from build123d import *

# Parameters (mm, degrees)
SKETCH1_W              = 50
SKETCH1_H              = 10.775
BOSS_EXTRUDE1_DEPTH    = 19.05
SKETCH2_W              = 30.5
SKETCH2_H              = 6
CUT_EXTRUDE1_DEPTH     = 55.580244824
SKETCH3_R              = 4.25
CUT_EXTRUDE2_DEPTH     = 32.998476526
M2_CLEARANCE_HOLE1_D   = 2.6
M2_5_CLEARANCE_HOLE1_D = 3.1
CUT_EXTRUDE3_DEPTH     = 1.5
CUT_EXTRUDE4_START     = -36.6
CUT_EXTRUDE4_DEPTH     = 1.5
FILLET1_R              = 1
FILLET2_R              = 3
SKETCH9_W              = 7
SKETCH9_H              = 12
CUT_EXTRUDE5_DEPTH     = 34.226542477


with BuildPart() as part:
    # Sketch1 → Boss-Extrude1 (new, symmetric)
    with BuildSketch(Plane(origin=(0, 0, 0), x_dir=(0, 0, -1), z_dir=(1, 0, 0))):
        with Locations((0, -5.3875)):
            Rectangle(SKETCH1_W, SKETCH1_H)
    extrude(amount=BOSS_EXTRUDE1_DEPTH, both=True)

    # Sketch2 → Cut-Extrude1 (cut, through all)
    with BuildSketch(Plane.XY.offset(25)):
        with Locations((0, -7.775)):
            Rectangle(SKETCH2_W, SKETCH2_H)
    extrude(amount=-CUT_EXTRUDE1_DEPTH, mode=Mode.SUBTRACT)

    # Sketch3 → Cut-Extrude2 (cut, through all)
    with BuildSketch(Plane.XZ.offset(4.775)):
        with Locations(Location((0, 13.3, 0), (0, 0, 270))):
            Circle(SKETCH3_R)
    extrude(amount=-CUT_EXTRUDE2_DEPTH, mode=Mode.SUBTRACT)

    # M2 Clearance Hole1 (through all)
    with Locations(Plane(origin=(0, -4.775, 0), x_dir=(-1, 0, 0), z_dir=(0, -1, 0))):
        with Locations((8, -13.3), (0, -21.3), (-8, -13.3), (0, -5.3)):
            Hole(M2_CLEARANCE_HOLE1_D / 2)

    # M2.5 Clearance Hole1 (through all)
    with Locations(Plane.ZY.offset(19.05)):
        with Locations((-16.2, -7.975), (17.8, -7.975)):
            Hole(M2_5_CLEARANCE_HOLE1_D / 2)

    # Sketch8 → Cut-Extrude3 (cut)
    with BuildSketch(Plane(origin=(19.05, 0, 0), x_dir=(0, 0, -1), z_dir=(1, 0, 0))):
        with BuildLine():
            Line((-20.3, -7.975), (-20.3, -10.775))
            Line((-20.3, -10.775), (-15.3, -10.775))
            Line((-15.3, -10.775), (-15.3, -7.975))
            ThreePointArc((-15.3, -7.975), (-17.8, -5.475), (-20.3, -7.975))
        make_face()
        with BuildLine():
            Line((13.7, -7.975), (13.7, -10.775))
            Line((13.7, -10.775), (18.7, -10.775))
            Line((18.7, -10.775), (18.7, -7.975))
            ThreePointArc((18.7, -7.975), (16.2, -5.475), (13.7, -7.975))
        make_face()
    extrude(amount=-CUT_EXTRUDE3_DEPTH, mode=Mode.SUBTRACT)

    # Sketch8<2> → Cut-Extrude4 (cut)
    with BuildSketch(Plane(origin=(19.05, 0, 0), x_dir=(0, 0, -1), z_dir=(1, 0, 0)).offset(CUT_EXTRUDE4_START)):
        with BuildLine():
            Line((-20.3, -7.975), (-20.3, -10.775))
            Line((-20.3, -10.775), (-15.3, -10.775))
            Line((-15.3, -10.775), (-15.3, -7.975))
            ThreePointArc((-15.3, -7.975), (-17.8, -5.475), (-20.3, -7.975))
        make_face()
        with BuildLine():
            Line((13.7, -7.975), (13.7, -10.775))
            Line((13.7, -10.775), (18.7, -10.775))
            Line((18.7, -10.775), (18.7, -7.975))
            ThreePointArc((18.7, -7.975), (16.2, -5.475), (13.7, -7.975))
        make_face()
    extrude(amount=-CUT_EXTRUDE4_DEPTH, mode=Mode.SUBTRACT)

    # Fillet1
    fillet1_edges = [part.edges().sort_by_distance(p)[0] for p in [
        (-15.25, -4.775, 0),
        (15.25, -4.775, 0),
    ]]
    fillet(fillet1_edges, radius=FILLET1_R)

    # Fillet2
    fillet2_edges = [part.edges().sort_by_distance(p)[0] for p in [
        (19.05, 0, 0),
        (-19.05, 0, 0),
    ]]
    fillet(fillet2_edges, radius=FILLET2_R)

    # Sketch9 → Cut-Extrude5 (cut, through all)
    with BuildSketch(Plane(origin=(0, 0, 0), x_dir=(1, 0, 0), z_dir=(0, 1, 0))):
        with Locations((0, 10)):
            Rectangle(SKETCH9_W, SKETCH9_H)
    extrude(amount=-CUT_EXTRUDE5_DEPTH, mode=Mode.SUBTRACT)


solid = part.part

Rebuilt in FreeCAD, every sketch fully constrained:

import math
import FreeCAD as App
import Part
import Sketcher

V = App.Vector


def edges_at(feature, points):
    """Names of the edges that pass closest to the given points."""
    edges = feature.Shape.Edges
    near = lambda p: min(range(len(edges)), key=lambda i: edges[i].distToShape(Part.Vertex(*p))[0])
    return sorted({f"Edge{near(p) + 1}" for p in points})


def add_polygon(sketch, points):
    """Adds a closed chain of lines whose ends are joined by coincident constraints."""
    first, n = sketch.GeometryCount, len(points)
    for a, b in zip(points, points[1:] + points[:1]):
        sketch.addGeometry(Part.LineSegment(App.Vector(*a, 0), App.Vector(*b, 0)), False)
    for i in range(n):
        sketch.addConstraint(Sketcher.Constraint("Coincident", first + i, 2, first + (i + 1) % n, 1))

doc = App.newDocument("Part")
params = doc.addObject("Spreadsheet::Sheet", "Params")
for row, (alias, value) in enumerate([
    ("sketch1_height", "50 mm"),
    ("pad1_length", "38.1 mm"),
    ("sketch2_height", "6 mm"),
    ("sketch2_width", "30.5 mm"),
    ("sketch3_diameter", "8.5 mm"),
    ("sketch4_diameter", "2.6 mm"),
    ("hole_diameter", "2.6 mm"),
    ("sketch5_diameter", "3.1 mm"),
    ("hole2_diameter", "3.1 mm"),
    ("sketch6_radius", "2.5 mm"),
    ("sketch6_width", "2.8 mm"),
    ("pocket3_length", "1.5 mm"),
    ("sketch7_radius", "2.5 mm"),
    ("sketch7_width", "2.8 mm"),
    ("pocket4_length", "1.5 mm"),
    ("fillet_radius", "1 mm"),
    ("fillet2_radius", "3 mm"),
    ("sketch8_width", "7 mm"),
    ("sketch8_height", "12 mm"),
], start=1):
    params.set(f"A{row}", alias)
    params.set(f"B{row}", "=" + value)
    params.setAlias(f"B{row}", alias)

body = doc.addObject("PartDesign::Body", "Body")

sketch1 = body.newObject("Sketcher::SketchObject", "Sketch")
sketch1.AttachmentSupport = (doc.getObject("YZ_Plane"), [""])
sketch1.MapMode = "FlatFace"
add_polygon(sketch1, [(0, 25), (-11, 25), (-11, -25), (0, -25)])
sketch1.addConstraint([
    Sketcher.Constraint("Horizontal", 0),
    Sketcher.Constraint("Vertical", 1),
    Sketcher.Constraint("Horizontal", 2),
    Sketcher.Constraint("Vertical", 3),
    Sketcher.Constraint("Symmetric", 2, 2, 3, 2, -1, 1),
    Sketcher.Constraint("DistanceY", 1, 2, 1, 1, 50.0),
    Sketcher.Constraint("DistanceX", 0, 2, 0, 1, 10.775),
])
sketch1.setExpression("Constraints[9]", "Params.sketch1_height")
pad1 = body.newObject("PartDesign::Pad", "Pad")
pad1.Profile = sketch1
pad1.setExpression("Length", "Params.pad1_length")
pad1.Midplane = True

sketch2 = body.newObject("Sketcher::SketchObject", "Sketch001")
sketch2.AttachmentSupport = (doc.getObject("XY_Plane"), [""])
sketch2.MapMode = "FlatFace"
sketch2.AttachmentOffset = App.Placement(V(0, 0, 25), App.Rotation())
add_polygon(sketch2, [(-15, -5), (-15, -11), (15, -11), (15, -5)])
sketch2.addConstraint([
    Sketcher.Constraint("Vertical", 0),
    Sketcher.Constraint("Horizontal", 1),
    Sketcher.Constraint("Vertical", 2),
    Sketcher.Constraint("Horizontal", 3),
    Sketcher.Constraint("DistanceY", 0, 2, 0, 1, 6.0),
    Sketcher.Constraint("DistanceX", 1, 1, 1, 2, 30.5),
    Sketcher.Constraint("DistanceX", 0, 2, -1, 1, 15.25),
    Sketcher.Constraint("DistanceY", 0, 2, -1, 1, 10.775),
])
sketch2.setExpression("Constraints[8]", "Params.sketch2_height")
sketch2.setExpression("Constraints[9]", "Params.sketch2_width")
pocket1 = body.newObject("PartDesign::Pocket", "Pocket")
pocket1.Profile = sketch2
pocket1.Type = "ThroughAll"

sketch3 = body.newObject("Sketcher::SketchObject", "Sketch002")
sketch3.AttachmentSupport = (doc.getObject("XZ_Plane"), [""])
sketch3.MapMode = "FlatFace"
sketch3.AttachmentOffset = App.Placement(V(0, 0, 4.775), App.Rotation())
sketch3.addGeometry(Part.Circle(V(0, 13.3, 0), V(0, 0, 1), 4.2), False)
sketch3.addConstraint([
    Sketcher.Constraint("PointOnObject", 0, 3, -2),
    Sketcher.Constraint("Diameter", 0, 8.5),
    Sketcher.Constraint("DistanceY", -1, 1, 0, 3, 13.3),
])
sketch3.setExpression("Constraints[1]", "Params.sketch3_diameter")
pocket2 = body.newObject("PartDesign::Pocket", "Pocket001")
pocket2.Profile = sketch3
pocket2.Type = "ThroughAll"

sketch4 = body.newObject("Sketcher::SketchObject", "Sketch003")
sketch4.AttachmentSupport = (doc.getObject("XZ_Plane"), [""])
sketch4.MapMode = "FlatFace"
sketch4.AttachmentOffset = App.Placement(V(0, 0, 4.775), App.Rotation())
sketch4.addGeometry([
    Part.Circle(V(-8, 13.3, 0), V(0, 0, 1), 1.3),
    Part.Circle(V(0, 21.3, 0), V(0, 0, 1), 1.3),
    Part.Circle(V(8, 13.3, 0), V(0, 0, 1), 1.3),
    Part.Circle(V(0, 5.3, 0), V(0, 0, 1), 1.3),
], False)
sketch4.addConstraint([
    Sketcher.Constraint("Equal", 0, 1),
    Sketcher.Constraint("Equal", 1, 2),
    Sketcher.Constraint("Equal", 2, 3),
    Sketcher.Constraint("Symmetric", 0, 3, 2, 3, -2),
    Sketcher.Constraint("PointOnObject", 1, 3, -2),
    Sketcher.Constraint("PointOnObject", 3, 3, -2),
    Sketcher.Constraint("Diameter", 0, 2.6),
    Sketcher.Constraint("DistanceX", 0, 3, -1, 1, 8.0),
    Sketcher.Constraint("DistanceY", 0, 3, 1, 3, 8.0),
    Sketcher.Constraint("DistanceY", 3, 3, 0, 3, 8.0),
    Sketcher.Constraint("DistanceY", -1, 1, 0, 3, 13.3),
])
sketch4.setExpression("Constraints[6]", "Params.sketch4_diameter")
doc.recompute()
hole = body.newObject("PartDesign::Hole", "Hole")
hole.Profile = sketch4
hole.ThreadType = "None"
hole.setExpression("Diameter", "Params.hole_diameter")
hole.DepthType = "ThroughAll"

sketch5 = body.newObject("Sketcher::SketchObject", "Sketch004")
sketch5.AttachmentSupport = (doc.getObject("YZ_Plane"), [""])
sketch5.MapMode = "FlatFace"
sketch5.AttachmentOffset = App.Placement(V(0, 0, -19.05), App.Rotation())
sketch5.addGeometry([
    Part.Circle(V(-8, -16.2, 0), V(0, 0, 1), 1.6),
    Part.Circle(V(-8, 17.8, 0), V(0, 0, 1), 1.6),
], False)
sketch5.addConstraint([
    Sketcher.Constraint("Equal", 0, 1),
    Sketcher.Constraint("Vertical", 0, 3, 1, 3),
    Sketcher.Constraint("Diameter", 0, 3.1),
    Sketcher.Constraint("DistanceY", 0, 3, 1, 3, 34.0),
    Sketcher.Constraint("DistanceY", 0, 3, -1, 1, 16.2),
    Sketcher.Constraint("DistanceX", 0, 3, -1, 1, 7.975),
])
sketch5.setExpression("Constraints[2]", "Params.sketch5_diameter")
doc.recompute()
hole2 = body.newObject("PartDesign::Hole", "Hole001")
hole2.Profile = sketch5
hole2.ThreadType = "None"
hole2.setExpression("Diameter", "Params.hole2_diameter")
hole2.DepthType = "ThroughAll"
hole2.Reversed = True

sketch6 = body.newObject("Sketcher::SketchObject", "Sketch005")
sketch6.AttachmentSupport = (doc.getObject("YZ_Plane"), [""])
sketch6.MapMode = "FlatFace"
sketch6.AttachmentOffset = App.Placement(V(0, 0, 19.05), App.Rotation())
sketch6.addGeometry([
    Part.LineSegment(V(-8, 20.3, 0), V(-10.8, 20.3, 0)),
    Part.LineSegment(V(-10.8, 20.3, 0), V(-10.8, 15.3, 0)),
    Part.LineSegment(V(-10.8, 15.3, 0), V(-8, 15.3, 0)),
    Part.ArcOfCircle(Part.Circle(V(-8, 17.8, 0), V(0, 0, 1), 2.5), math.radians(-90), math.radians(90)),
    Part.LineSegment(V(-8, -13.7, 0), V(-10.8, -13.7, 0)),
    Part.LineSegment(V(-10.8, -13.7, 0), V(-10.8, -18.7, 0)),
    Part.LineSegment(V(-10.8, -18.7, 0), V(-8, -18.7, 0)),
    Part.ArcOfCircle(Part.Circle(V(-8, -16.2, 0), V(0, 0, 1), 2.5), math.radians(-90), math.radians(90)),
], False)
sketch6.addConstraint([
    Sketcher.Constraint("Coincident", 0, 2, 1, 1),
    Sketcher.Constraint("Coincident", 1, 2, 2, 1),
    Sketcher.Constraint("Tangent", 2, 2, 3, 1),
    Sketcher.Constraint("Tangent", 3, 2, 0, 1),
    Sketcher.Constraint("Coincident", 4, 2, 5, 1),
    Sketcher.Constraint("Coincident", 5, 2, 6, 1),
    Sketcher.Constraint("Tangent", 6, 2, 7, 1),
    Sketcher.Constraint("Tangent", 7, 2, 4, 1),
    Sketcher.Constraint("Horizontal", 0),
    Sketcher.Constraint("Vertical", 1),
    Sketcher.Constraint("Horizontal", 2),
    Sketcher.Constraint("Horizontal", 4),
    Sketcher.Constraint("Vertical", 5),
    Sketcher.Constraint("Horizontal", 6),
    Sketcher.Constraint("Equal", 3, 7),
    Sketcher.Constraint("Vertical", 3, 3, 7, 3),
    Sketcher.Constraint("Vertical", 1, 2, 4, 2),
    Sketcher.Constraint("Radius", 3, 2.5),
    Sketcher.Constraint("DistanceX", 0, 2, 0, 1, 2.8),
    Sketcher.Constraint("DistanceY", 7, 3, 3, 3, 34.0),
    Sketcher.Constraint("DistanceY", -1, 1, 3, 3, 17.8),
    Sketcher.Constraint("DistanceX", 3, 3, -1, 1, 7.975),
])
sketch6.setExpression("Constraints[17]", "Params.sketch6_radius")
sketch6.setExpression("Constraints[18]", "Params.sketch6_width")
pocket3 = body.newObject("PartDesign::Pocket", "Pocket002")
pocket3.Profile = sketch6
pocket3.setExpression("Length", "Params.pocket3_length")

sketch7 = body.newObject("Sketcher::SketchObject", "Sketch006")
sketch7.AttachmentSupport = (doc.getObject("YZ_Plane"), [""])
sketch7.MapMode = "FlatFace"
sketch7.AttachmentOffset = App.Placement(V(0, 0, -17.55), App.Rotation())
sketch7.addGeometry([
    Part.LineSegment(V(-8, 20.3, 0), V(-10.8, 20.3, 0)),
    Part.LineSegment(V(-10.8, 20.3, 0), V(-10.8, 15.3, 0)),
    Part.LineSegment(V(-10.8, 15.3, 0), V(-8, 15.3, 0)),
    Part.ArcOfCircle(Part.Circle(V(-8, 17.8, 0), V(0, 0, 1), 2.5), math.radians(-90), math.radians(90)),
    Part.LineSegment(V(-8, -13.7, 0), V(-10.8, -13.7, 0)),
    Part.LineSegment(V(-10.8, -13.7, 0), V(-10.8, -18.7, 0)),
    Part.LineSegment(V(-10.8, -18.7, 0), V(-8, -18.7, 0)),
    Part.ArcOfCircle(Part.Circle(V(-8, -16.2, 0), V(0, 0, 1), 2.5), math.radians(-90), math.radians(90)),
], False)
sketch7.addConstraint([
    Sketcher.Constraint("Coincident", 0, 2, 1, 1),
    Sketcher.Constraint("Coincident", 1, 2, 2, 1),
    Sketcher.Constraint("Tangent", 2, 2, 3, 1),
    Sketcher.Constraint("Tangent", 3, 2, 0, 1),
    Sketcher.Constraint("Coincident", 4, 2, 5, 1),
    Sketcher.Constraint("Coincident", 5, 2, 6, 1),
    Sketcher.Constraint("Tangent", 6, 2, 7, 1),
    Sketcher.Constraint("Tangent", 7, 2, 4, 1),
    Sketcher.Constraint("Horizontal", 0),
    Sketcher.Constraint("Vertical", 1),
    Sketcher.Constraint("Horizontal", 2),
    Sketcher.Constraint("Horizontal", 4),
    Sketcher.Constraint("Vertical", 5),
    Sketcher.Constraint("Horizontal", 6),
    Sketcher.Constraint("Equal", 3, 7),
    Sketcher.Constraint("Vertical", 3, 3, 7, 3),
    Sketcher.Constraint("Vertical", 1, 2, 4, 2),
    Sketcher.Constraint("Radius", 3, 2.5),
    Sketcher.Constraint("DistanceX", 0, 2, 0, 1, 2.8),
    Sketcher.Constraint("DistanceY", 7, 3, 3, 3, 34.0),
    Sketcher.Constraint("DistanceY", -1, 1, 3, 3, 17.8),
    Sketcher.Constraint("DistanceX", 3, 3, -1, 1, 7.975),
])
sketch7.setExpression("Constraints[17]", "Params.sketch7_radius")
sketch7.setExpression("Constraints[18]", "Params.sketch7_width")
pocket4 = body.newObject("PartDesign::Pocket", "Pocket003")
pocket4.Profile = sketch7
pocket4.setExpression("Length", "Params.pocket4_length")
doc.recompute()

fillet = body.newObject("PartDesign::Fillet", "Fillet")
fillet.Base = (pocket4, edges_at(pocket4, [(-15.25, -4.775, 0), (15.25, -4.775, 0)]))
fillet.setExpression("Radius", "Params.fillet_radius")
doc.recompute()

fillet2 = body.newObject("PartDesign::Fillet", "Fillet001")
fillet2.Base = (fillet, edges_at(fillet, [(19.05, 0, 0), (-19.05, 0, 0)]))
fillet2.setExpression("Radius", "Params.fillet2_radius")

sketch8 = body.newObject("Sketcher::SketchObject", "Sketch007")
sketch8.AttachmentSupport = (doc.getObject("XZ_Plane"), [""])
sketch8.MapMode = "FlatFace"
add_polygon(sketch8, [(-4, -16), (-4, -4), (4, -4), (4, -16)])
sketch8.addConstraint([
    Sketcher.Constraint("Vertical", 0),
    Sketcher.Constraint("Horizontal", 1),
    Sketcher.Constraint("Vertical", 2),
    Sketcher.Constraint("Horizontal", 3),
    Sketcher.Constraint("DistanceX", 1, 1, 1, 2, 7.0),
    Sketcher.Constraint("DistanceY", 0, 1, 0, 2, 12.0),
    Sketcher.Constraint("DistanceY", 0, 2, -1, 1, 4.0),
    Sketcher.Constraint("DistanceX", 0, 2, -1, 1, 3.5),
])
sketch8.setExpression("Constraints[8]", "Params.sketch8_width")
sketch8.setExpression("Constraints[9]", "Params.sketch8_height")
pocket5 = body.newObject("PartDesign::Pocket", "Pocket004")
pocket5.Profile = sketch8
pocket5.Type = "ThroughAll"
pocket5.Reversed = True

doc.recompute()
